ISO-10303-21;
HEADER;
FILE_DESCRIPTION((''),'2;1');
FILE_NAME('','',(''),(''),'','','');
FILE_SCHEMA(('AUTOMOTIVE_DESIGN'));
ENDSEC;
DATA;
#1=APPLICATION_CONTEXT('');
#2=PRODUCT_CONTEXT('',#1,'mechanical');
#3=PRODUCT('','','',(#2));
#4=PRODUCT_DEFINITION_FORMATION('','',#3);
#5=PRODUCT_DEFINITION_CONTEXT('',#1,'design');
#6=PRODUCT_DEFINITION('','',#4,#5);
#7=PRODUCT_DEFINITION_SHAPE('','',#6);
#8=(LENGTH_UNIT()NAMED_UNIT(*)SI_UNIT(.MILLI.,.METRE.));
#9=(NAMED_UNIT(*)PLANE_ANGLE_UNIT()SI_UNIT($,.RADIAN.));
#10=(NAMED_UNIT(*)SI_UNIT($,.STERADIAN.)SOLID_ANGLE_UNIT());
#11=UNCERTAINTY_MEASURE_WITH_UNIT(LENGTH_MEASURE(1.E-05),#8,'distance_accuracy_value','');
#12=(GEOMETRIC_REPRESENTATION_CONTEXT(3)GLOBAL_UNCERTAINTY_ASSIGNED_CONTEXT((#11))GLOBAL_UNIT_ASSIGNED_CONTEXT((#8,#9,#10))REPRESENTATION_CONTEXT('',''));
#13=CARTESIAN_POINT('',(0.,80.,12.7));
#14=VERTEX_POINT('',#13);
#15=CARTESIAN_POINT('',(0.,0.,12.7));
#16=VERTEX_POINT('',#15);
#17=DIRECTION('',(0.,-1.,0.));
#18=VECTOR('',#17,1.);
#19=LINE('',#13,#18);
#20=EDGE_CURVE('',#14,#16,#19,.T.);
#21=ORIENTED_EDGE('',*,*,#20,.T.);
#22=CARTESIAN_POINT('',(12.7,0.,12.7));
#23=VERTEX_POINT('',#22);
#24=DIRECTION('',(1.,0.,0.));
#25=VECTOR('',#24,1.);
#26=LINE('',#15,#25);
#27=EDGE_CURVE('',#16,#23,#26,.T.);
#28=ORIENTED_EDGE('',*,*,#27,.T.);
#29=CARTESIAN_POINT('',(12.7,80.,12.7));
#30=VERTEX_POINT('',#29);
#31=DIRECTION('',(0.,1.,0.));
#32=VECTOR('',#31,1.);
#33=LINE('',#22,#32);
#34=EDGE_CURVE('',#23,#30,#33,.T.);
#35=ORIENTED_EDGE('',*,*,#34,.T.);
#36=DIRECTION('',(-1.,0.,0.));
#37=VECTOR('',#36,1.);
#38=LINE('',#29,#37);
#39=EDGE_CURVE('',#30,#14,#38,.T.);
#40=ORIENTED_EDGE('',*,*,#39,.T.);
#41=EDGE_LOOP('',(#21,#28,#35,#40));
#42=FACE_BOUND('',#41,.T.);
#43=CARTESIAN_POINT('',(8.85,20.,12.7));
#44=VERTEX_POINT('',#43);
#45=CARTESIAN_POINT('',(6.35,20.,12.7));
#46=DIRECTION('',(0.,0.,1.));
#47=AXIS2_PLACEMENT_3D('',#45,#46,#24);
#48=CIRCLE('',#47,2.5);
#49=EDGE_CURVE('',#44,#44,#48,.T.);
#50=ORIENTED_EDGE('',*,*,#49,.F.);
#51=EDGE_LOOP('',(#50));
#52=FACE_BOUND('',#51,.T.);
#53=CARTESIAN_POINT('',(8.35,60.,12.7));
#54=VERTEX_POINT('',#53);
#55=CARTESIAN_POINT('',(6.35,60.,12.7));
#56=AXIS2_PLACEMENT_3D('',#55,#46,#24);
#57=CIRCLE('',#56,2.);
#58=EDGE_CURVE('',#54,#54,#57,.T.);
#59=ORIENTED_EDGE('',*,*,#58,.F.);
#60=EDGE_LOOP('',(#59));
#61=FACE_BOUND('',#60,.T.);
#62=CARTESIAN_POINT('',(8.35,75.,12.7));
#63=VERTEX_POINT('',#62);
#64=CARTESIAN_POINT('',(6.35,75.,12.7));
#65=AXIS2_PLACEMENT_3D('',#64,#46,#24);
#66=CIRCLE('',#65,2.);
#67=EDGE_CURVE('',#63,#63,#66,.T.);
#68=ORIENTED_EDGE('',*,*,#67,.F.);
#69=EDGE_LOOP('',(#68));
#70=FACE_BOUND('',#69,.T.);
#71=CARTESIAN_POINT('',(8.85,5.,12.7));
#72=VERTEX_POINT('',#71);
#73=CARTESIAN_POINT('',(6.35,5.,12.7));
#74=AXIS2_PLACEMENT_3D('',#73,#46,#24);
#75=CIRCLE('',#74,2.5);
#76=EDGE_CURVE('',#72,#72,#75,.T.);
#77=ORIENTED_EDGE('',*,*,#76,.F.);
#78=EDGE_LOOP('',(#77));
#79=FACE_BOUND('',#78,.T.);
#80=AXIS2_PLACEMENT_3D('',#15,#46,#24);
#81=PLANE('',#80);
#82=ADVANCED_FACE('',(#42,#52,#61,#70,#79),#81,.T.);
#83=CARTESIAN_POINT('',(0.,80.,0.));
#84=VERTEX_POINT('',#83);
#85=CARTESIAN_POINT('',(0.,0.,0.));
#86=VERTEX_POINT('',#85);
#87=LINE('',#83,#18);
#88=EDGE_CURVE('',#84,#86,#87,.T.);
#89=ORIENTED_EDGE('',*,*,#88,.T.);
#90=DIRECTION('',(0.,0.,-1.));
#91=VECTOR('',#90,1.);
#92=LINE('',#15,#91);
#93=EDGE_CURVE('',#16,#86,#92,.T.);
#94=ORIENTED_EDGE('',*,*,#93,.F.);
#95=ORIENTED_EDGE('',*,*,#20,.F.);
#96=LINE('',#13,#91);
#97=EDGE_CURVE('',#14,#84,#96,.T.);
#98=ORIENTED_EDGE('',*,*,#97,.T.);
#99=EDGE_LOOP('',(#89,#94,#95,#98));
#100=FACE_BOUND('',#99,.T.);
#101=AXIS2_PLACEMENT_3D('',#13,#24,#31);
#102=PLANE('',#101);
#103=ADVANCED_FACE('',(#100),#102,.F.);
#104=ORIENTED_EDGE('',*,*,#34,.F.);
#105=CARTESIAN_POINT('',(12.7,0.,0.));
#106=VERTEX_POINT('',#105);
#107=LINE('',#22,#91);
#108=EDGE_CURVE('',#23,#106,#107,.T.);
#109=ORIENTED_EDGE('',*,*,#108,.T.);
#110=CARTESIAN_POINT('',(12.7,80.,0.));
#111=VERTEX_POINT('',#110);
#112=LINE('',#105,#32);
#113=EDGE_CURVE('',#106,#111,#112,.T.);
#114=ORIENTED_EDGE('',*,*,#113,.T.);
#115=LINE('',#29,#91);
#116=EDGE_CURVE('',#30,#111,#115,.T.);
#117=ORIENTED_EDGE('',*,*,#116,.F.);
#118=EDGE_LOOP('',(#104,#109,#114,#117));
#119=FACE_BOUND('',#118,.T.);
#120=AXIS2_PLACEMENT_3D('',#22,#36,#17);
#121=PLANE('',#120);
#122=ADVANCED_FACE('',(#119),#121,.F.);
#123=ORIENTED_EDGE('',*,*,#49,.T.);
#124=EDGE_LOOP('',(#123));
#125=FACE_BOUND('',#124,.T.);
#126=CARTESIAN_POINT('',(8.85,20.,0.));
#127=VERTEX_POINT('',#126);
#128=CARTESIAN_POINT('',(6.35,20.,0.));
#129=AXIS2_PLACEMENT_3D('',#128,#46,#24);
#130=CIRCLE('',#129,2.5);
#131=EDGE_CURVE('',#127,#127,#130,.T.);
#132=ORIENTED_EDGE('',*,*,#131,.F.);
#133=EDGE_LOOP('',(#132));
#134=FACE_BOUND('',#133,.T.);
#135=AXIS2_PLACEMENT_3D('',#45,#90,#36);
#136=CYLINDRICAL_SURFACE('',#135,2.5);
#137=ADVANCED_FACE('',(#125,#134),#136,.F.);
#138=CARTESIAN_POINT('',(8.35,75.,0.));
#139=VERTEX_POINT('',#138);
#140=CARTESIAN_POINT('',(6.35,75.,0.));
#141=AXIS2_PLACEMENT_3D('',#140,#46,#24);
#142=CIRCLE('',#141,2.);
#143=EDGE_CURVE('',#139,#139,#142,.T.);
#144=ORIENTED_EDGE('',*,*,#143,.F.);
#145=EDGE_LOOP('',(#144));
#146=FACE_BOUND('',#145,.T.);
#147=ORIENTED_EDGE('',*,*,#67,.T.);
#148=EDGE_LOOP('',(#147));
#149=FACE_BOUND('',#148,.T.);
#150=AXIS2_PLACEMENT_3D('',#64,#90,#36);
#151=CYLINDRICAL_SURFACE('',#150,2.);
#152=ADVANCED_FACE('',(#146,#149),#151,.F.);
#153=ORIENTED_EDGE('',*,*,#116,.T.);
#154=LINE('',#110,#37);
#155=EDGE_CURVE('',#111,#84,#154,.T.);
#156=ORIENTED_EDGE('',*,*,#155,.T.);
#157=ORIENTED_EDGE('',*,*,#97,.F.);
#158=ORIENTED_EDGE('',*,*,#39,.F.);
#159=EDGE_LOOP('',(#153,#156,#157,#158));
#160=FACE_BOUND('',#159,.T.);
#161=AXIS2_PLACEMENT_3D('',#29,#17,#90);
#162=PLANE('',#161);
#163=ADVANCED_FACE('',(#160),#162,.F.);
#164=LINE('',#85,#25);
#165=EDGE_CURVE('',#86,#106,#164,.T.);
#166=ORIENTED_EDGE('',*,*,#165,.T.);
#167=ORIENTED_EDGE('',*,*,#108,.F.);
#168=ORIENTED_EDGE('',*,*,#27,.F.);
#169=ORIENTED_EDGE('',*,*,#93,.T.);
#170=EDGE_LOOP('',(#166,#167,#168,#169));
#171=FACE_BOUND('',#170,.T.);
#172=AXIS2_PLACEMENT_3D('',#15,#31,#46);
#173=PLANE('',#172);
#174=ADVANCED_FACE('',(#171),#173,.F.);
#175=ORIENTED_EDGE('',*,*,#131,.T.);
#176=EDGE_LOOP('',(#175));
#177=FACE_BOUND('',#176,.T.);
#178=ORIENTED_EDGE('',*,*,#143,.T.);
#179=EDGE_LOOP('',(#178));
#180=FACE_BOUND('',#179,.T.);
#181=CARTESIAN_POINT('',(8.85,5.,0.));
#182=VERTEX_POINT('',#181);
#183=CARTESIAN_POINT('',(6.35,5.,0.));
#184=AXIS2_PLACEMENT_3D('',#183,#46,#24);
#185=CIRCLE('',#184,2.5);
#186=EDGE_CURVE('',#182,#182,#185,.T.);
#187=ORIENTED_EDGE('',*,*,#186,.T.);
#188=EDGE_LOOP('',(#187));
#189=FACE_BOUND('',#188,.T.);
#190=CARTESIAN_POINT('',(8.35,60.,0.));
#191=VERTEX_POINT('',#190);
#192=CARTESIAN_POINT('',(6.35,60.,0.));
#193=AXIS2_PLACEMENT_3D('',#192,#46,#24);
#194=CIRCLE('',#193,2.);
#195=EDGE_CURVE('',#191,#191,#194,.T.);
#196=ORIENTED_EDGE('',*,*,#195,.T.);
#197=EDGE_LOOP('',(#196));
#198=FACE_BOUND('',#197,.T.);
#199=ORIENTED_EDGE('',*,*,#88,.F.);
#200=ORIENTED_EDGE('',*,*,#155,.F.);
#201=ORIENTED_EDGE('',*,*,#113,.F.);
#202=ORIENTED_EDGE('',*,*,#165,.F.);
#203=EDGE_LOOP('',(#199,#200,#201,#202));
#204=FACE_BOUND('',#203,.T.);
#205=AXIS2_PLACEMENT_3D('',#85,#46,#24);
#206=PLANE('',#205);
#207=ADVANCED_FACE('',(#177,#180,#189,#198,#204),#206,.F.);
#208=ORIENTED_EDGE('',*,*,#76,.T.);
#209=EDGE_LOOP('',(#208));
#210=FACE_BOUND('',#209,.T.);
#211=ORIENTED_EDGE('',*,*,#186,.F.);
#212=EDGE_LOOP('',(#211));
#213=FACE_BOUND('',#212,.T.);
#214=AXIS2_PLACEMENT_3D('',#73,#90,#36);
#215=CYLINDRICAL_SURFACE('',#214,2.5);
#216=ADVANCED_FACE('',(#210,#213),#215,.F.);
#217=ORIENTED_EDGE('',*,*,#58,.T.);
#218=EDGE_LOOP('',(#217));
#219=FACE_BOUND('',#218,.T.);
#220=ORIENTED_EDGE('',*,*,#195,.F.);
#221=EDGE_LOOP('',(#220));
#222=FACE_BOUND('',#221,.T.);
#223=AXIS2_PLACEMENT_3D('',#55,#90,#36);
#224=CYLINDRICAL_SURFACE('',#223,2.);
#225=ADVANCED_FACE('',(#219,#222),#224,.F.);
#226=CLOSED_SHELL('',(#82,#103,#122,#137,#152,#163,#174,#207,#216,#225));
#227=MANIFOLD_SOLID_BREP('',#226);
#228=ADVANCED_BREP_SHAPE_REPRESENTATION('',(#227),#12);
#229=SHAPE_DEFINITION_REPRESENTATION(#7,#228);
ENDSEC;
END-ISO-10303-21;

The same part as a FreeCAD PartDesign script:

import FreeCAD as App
import Part
import Sketcher
from FreeCAD import Vector

doc = App.newDocument("Part")
body = doc.addObject("PartDesign::Body", "Body")

sketch1 = body.newObject("Sketcher::SketchObject", "Sketch")
sketch1.AttachmentSupport = (doc.getObject("XY_Plane"), [""])
sketch1.MapMode = "FlatFace"
sketch1.addGeometry([
    Part.LineSegment(Vector(0, 80, 0), Vector(0, 0, 0)),
    Part.LineSegment(Vector(0, 0, 0), Vector(13, 0, 0)),
    Part.LineSegment(Vector(13, 0, 0), Vector(13, 80, 0)),
    Part.LineSegment(Vector(13, 80, 0), Vector(0, 80, 0)),
], False)
sketch1.addConstraint([
    Sketcher.Constraint("Coincident", 0, 2, 1, 1),
    Sketcher.Constraint("Coincident", 1, 2, 2, 1),
    Sketcher.Constraint("Coincident", 2, 2, 3, 1),
    Sketcher.Constraint("Coincident", 3, 2, 0, 1),
    Sketcher.Constraint("Vertical", 0),
    Sketcher.Constraint("Horizontal", 1),
    Sketcher.Constraint("Vertical", 2),
    Sketcher.Constraint("Horizontal", 3),
    Sketcher.Constraint("Coincident", 0, 2, -1, 1),
    Sketcher.Constraint("DistanceY", 0, 2, 0, 1, 80.0),
    Sketcher.Constraint("DistanceX", 1, 1, 1, 2, 12.7),
])
pad1 = body.newObject("PartDesign::Pad", "Pad")
pad1.Profile = sketch1
pad1.Length = 12.7

sketch2 = body.newObject("Sketcher::SketchObject", "Sketch001")
sketch2.AttachmentSupport = (doc.getObject("XY_Plane"), [""])
sketch2.MapMode = "FlatFace"
sketch2.addGeometry([
    Part.Circle(Vector(6.3, 5, 0), Vector(0, 0, 1), 2.5),
    Part.Circle(Vector(6.3, 20, 0), Vector(0, 0, 1), 2.5),
    Part.Circle(Vector(6.3, 60, 0), Vector(0, 0, 1), 2),
    Part.Circle(Vector(6.3, 75, 0), Vector(0, 0, 1), 2),
], False)
sketch2.addConstraint([
    Sketcher.Constraint("Equal", 0, 1),
    Sketcher.Constraint("Equal", 2, 3),
    Sketcher.Constraint("Vertical", 0, 3, 1, 3),
    Sketcher.Constraint("Vertical", 1, 3, 2, 3),
    Sketcher.Constraint("Vertical", 2, 3, 3, 3),
    Sketcher.Constraint("Diameter", 0, 5.0),
    Sketcher.Constraint("Diameter", 2, 4.0),
    Sketcher.Constraint("DistanceY", -1, 1, 0, 3, 5.0),
    Sketcher.Constraint("DistanceY", -1, 1, 1, 3, 20.0),
    Sketcher.Constraint("DistanceY", -1, 1, 2, 3, 60.0),
    Sketcher.Constraint("DistanceY", -1, 1, 3, 3, 75.0),
    Sketcher.Constraint("DistanceX", -1, 1, 0, 3, 6.35),
])
pocket1 = body.newObject("PartDesign::Pocket", "Pocket")
pocket1.Profile = sketch2
pocket1.Type = "ThroughAll"
pocket1.Reversed = True

doc.recompute()
